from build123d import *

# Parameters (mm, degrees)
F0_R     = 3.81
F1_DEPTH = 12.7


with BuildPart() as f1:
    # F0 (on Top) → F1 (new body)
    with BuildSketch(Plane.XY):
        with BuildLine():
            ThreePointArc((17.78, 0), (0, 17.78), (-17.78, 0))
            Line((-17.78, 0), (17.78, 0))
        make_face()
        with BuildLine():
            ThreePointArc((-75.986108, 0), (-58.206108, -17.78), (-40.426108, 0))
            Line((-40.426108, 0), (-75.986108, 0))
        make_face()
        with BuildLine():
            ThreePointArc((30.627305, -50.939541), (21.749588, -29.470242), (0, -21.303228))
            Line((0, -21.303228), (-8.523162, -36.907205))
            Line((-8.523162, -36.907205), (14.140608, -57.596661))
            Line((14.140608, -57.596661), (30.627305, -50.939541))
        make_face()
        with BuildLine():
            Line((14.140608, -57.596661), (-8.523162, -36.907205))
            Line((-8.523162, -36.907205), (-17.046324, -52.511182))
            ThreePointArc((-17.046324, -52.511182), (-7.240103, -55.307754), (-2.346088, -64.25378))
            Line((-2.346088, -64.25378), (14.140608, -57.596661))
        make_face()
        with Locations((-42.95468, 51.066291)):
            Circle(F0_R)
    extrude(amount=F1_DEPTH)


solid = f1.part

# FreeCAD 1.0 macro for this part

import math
import FreeCAD as App
import Part
import Sketcher
from FreeCAD import Vector
Q = App.Units.Quantity

doc = App.newDocument("Part")
body = doc.addObject("PartDesign::Body", "Body")
body.AllowCompound = True

sketch1 = body.newObject("Sketcher::SketchObject", "Sketch")
sketch1.AttachmentSupport = (doc.getObject("XY_Plane"), [""])
sketch1.MapMode = "FlatFace"
sketch1.addGeometry([
    Part.ArcOfCircle(Part.Circle(Vector(0, 0, 0), Vector(0, 0, 1), 17.8), math.radians(0), math.radians(180)),
    Part.LineSegment(Vector(-17.8, 0, 0), Vector(17.8, 0, 0)),
    Part.ArcOfCircle(Part.Circle(Vector(-58.2, 0, 0), Vector(0, 0, 1), 17.8), math.radians(180), math.radians(360)),
    Part.LineSegment(Vector(-40.4, 0, 0), Vector(-76, 0, 0)),
    Part.ArcOfCircle(Part.Circle(Vector(1.5, -50.4, 0), Vector(0, 0, 1), 29.2), math.radians(-1), math.radians(93)),
    Part.LineSegment(Vector(0, -21.3, 0), Vector(-17, -52.5, 0)),
    Part.ArcOfCircle(Part.Circle(Vector(-15.5, -65.6, 0), Vector(0, 0, 1), 13.2), math.radians(6), math.radians(97)),
    Part.LineSegment(Vector(-2.3, -64.3, 0), Vector(14.1, -57.6, 0)),
    Part.LineSegment(Vector(14.1, -57.6, 0), Vector(30.6, -50.9, 0)),
    Part.Circle(Vector(-43, 51.1, 0), Vector(0, 0, 1), 3.8),
], False)
sketch1.addConstraint([
    Sketcher.Constraint("Coincident", 0, 1, 1, 2),
    Sketcher.Constraint("Coincident", 1, 1, 0, 2),
    Sketcher.Constraint("Coincident", 2, 1, 3, 2),
    Sketcher.Constraint("Coincident", 3, 1, 2, 2),
    Sketcher.Constraint("Coincident", 4, 2, 5, 1),
    Sketcher.Constraint("Coincident", 5, 2, 6, 2),
    Sketcher.Constraint("Coincident", 6, 1, 7, 1),
    Sketcher.Constraint("Coincident", 7, 2, 8, 1),
    Sketcher.Constraint("Coincident", 8, 2, 4, 1),
    Sketcher.Constraint("Horizontal", 1),
    Sketcher.Constraint("Horizontal", 3),
    Sketcher.Constraint("Coincident", 0, 3, -1, 1),
    Sketcher.Constraint("Equal", 0, 2),
    Sketcher.Constraint("PointOnObject", 2, 3, -1),
    Sketcher.Constraint("PointOnObject", 0, 1, -1),
    Sketcher.Constraint("PointOnObject", 2, 1, -1),
    Sketcher.Constraint("PointOnObject", 4, 2, -2),
    Sketcher.Constraint("Parallel", 7, 8),
    Sketcher.Constraint("Equal", 7, 8),
    Sketcher.Constraint("Diameter", 9, Q("0.3 in")),
    Sketcher.Constraint("Radius", 0, Q("0.7 in")),
    Sketcher.Constraint("Distance", 5, Q("1.4 in")),
    Sketcher.Constraint("Distance", 7, Q("0.7 in")),
    Sketcher.Constraint("Radius", 6, 13.211628),
    Sketcher.Constraint("Radius", 4, 29.158956),
    Sketcher.Constraint("DistanceX", 2, 3, 4, 3, 59.678998),
    Sketcher.Constraint("DistanceX", 2, 3, 6, 3, 42.7203),
    Sketcher.Constraint("DistanceY", 6, 1, 5, 2, 11.742598),
    Sketcher.Constraint("DistanceY", 7, 2, 4, 3, 7.171701),
    Sketcher.Constraint("DistanceX", -1, 1, 4, 3, 1.47289),
    Sketcher.Constraint("DistanceY", 4, 3, -1, 1, 50.42496),
    Sketcher.Constraint("DistanceX", 9, 3, -1, 1, 42.95468),
    Sketcher.Constraint("DistanceY", -1, 1, 9, 3, 51.066291),
])
pad1 = body.newObject("PartDesign::Pad", "Pad")
pad1.Profile = sketch1
pad1.Length = Q("0.5 in")

doc.recompute()
